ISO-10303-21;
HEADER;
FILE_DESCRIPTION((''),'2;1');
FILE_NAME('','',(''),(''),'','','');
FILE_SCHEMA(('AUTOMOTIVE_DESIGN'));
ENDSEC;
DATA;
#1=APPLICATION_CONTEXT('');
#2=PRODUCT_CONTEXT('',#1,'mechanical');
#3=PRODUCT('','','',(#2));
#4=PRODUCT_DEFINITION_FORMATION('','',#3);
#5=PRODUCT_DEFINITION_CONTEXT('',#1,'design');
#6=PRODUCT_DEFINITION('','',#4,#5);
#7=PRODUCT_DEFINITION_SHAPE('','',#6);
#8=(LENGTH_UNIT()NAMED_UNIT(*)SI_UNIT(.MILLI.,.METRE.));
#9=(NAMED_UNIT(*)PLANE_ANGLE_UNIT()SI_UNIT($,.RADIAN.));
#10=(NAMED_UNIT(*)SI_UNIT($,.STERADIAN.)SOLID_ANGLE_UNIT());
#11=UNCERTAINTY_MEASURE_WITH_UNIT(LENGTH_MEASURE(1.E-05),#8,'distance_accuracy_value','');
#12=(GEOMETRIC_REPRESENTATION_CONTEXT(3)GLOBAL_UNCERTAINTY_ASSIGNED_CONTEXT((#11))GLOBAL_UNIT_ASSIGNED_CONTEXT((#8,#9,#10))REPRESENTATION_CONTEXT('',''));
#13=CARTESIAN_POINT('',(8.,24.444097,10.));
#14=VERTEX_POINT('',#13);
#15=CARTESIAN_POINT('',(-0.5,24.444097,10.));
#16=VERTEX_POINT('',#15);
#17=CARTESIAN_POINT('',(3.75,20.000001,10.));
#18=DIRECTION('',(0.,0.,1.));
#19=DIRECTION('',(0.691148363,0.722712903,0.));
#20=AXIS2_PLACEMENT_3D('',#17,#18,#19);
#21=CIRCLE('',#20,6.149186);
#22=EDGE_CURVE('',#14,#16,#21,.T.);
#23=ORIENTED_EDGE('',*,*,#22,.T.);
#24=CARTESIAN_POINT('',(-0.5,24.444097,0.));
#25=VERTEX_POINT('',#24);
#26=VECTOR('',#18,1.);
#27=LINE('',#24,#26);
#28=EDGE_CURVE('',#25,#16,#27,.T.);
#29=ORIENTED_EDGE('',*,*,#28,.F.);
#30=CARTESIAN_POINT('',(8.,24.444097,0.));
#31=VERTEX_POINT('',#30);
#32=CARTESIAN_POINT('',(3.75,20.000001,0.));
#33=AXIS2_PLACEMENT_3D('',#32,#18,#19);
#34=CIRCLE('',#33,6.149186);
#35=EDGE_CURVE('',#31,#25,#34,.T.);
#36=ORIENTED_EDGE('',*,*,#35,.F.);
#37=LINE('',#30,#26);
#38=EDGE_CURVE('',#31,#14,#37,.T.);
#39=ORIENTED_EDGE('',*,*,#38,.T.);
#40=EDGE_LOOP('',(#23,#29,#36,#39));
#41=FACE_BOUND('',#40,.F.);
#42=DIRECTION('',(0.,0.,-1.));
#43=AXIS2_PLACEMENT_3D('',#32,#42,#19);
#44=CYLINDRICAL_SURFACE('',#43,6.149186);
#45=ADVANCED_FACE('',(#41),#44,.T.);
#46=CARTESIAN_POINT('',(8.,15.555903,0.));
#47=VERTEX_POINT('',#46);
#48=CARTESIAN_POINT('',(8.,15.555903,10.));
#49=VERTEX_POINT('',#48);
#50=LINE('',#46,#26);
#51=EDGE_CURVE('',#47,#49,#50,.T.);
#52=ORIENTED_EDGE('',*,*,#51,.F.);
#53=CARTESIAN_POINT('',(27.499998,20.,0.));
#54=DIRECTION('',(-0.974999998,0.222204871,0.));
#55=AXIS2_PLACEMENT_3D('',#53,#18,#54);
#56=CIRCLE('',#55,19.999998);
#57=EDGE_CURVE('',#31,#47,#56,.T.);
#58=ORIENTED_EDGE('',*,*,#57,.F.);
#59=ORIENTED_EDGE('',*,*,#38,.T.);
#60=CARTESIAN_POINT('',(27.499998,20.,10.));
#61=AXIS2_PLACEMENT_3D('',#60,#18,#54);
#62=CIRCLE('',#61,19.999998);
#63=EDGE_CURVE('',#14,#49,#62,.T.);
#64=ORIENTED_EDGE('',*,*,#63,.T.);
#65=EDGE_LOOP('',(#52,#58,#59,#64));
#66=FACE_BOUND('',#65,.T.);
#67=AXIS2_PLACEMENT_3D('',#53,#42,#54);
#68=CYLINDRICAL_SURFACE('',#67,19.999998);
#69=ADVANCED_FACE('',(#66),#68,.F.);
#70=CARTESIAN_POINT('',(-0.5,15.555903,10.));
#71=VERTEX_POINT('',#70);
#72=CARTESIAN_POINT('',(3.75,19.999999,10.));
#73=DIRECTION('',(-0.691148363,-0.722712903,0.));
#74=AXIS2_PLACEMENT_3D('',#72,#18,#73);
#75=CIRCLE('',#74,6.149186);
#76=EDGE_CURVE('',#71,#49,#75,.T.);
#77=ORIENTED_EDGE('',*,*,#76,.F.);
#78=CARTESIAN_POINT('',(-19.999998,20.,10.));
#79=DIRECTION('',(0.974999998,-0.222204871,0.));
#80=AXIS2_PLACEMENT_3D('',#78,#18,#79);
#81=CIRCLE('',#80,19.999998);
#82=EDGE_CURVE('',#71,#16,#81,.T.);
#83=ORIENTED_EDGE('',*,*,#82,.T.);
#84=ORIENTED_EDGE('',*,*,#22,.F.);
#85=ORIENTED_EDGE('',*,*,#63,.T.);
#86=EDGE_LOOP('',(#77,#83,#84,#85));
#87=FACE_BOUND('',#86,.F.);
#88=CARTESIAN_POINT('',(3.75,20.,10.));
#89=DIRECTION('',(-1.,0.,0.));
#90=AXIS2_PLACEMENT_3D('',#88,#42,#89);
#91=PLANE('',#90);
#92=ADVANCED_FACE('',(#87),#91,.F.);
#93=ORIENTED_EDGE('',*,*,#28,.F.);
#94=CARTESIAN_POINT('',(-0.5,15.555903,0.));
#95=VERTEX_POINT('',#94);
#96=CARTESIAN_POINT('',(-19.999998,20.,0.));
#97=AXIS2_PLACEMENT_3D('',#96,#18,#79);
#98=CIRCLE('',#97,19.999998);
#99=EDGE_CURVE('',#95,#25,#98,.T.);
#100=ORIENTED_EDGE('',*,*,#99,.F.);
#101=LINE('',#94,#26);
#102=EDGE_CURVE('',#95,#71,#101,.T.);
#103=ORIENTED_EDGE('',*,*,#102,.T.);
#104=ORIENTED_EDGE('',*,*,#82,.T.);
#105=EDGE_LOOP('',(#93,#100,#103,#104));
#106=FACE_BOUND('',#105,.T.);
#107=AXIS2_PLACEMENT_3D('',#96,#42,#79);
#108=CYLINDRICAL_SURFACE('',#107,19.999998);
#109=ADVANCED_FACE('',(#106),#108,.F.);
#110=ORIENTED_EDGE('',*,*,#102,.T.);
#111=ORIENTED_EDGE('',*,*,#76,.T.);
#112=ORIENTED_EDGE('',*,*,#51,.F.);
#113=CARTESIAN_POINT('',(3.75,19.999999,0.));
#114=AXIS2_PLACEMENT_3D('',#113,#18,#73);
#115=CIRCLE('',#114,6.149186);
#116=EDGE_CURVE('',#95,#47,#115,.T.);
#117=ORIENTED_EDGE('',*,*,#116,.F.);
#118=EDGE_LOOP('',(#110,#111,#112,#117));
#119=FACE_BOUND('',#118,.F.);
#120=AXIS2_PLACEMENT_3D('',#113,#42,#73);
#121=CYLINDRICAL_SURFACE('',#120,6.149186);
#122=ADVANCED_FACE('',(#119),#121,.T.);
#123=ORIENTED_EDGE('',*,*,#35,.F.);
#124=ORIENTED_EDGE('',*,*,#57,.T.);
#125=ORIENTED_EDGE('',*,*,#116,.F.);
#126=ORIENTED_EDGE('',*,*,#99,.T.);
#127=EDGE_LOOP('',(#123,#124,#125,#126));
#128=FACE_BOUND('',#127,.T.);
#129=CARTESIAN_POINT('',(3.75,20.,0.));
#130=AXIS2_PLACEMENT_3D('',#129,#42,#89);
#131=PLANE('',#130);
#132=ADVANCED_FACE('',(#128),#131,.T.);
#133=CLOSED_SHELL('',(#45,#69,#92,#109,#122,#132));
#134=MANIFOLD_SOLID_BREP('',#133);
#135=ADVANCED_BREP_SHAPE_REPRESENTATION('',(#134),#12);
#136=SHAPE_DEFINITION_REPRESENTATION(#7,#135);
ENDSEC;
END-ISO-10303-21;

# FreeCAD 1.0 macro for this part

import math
import FreeCAD as App
import Part
import Sketcher

V = App.Vector
Q = App.Units.Quantity

doc = App.newDocument("Part")
body = doc.addObject("PartDesign::Body", "Body")

# Sketch on XY plane
sketch1 = body.newObject("Sketcher::SketchObject", "Sketch")
sketch1.AttachmentSupport = (doc.getObject("XY_Plane"), [""])
sketch1.MapMode = "FlatFace"
sketch1.addGeometry(Part.ArcOfCircle(Part.Circle(V(27, 20, 0), V(0, 0, 1), 20), math.radians(167), math.radians(193)), False)
sketch1.addGeometry(Part.ArcOfCircle(Part.Circle(V(4, 20, 0), V(0, 0, 1), 6), math.radians(46), math.radians(134)), False)
sketch1.addGeometry(Part.ArcOfCircle(Part.Circle(V(-20, 20, 0), V(0, 0, 1), 20), math.radians(-13), math.radians(13)), False)
sketch1.addGeometry(Part.ArcOfCircle(Part.Circle(V(4, 20, 0), V(0, 0, 1), 6), math.radians(-134), math.radians(-46)), False)
sketch1.addConstraint(Sketcher.Constraint("Coincident", 0, 1, 1, 1))
sketch1.addConstraint(Sketcher.Constraint("Coincident", 1, 2, 2, 2))
sketch1.addConstraint(Sketcher.Constraint("Coincident", 2, 1, 3, 1))
sketch1.addConstraint(Sketcher.Constraint("Coincident", 3, 2, 0, 2))
sketch1.addConstraint(Sketcher.Constraint("Coincident", 3, 3, 1, 3))
sketch1.addConstraint(Sketcher.Constraint("Equal", 0, 2))
sketch1.addConstraint(Sketcher.Constraint("Equal", 1, 3))
sketch1.addConstraint(Sketcher.Constraint("Horizontal", 0, 3, 1, 3))
sketch1.addConstraint(Sketcher.Constraint("Horizontal", 1, 3, 2, 3))
sketch1.addConstraint(Sketcher.Constraint("Horizontal", 0, 1, 1, 2))
sketch1.addConstraint(Sketcher.Constraint("Radius", 0, Q("19.999998 mm")))
sketch1.addConstraint(Sketcher.Constraint("DistanceY", -1, 1, 0, 3, Q("20 mm")))
sketch1.addConstraint(Sketcher.Constraint("DistanceX", 2, 3, -1, 1, Q("19.999998 mm")))
sketch1.addConstraint(Sketcher.Constraint("DistanceX", -1, 1, 0, 1, Q("8 mm")))
sketch1.addConstraint(Sketcher.Constraint("DistanceX", -1, 1, 0, 3, Q("27.499998 mm")))
pad1 = body.newObject("PartDesign::Pad", "Pad")
pad1.Profile = sketch1
pad1.Length = 10

doc.recompute()
